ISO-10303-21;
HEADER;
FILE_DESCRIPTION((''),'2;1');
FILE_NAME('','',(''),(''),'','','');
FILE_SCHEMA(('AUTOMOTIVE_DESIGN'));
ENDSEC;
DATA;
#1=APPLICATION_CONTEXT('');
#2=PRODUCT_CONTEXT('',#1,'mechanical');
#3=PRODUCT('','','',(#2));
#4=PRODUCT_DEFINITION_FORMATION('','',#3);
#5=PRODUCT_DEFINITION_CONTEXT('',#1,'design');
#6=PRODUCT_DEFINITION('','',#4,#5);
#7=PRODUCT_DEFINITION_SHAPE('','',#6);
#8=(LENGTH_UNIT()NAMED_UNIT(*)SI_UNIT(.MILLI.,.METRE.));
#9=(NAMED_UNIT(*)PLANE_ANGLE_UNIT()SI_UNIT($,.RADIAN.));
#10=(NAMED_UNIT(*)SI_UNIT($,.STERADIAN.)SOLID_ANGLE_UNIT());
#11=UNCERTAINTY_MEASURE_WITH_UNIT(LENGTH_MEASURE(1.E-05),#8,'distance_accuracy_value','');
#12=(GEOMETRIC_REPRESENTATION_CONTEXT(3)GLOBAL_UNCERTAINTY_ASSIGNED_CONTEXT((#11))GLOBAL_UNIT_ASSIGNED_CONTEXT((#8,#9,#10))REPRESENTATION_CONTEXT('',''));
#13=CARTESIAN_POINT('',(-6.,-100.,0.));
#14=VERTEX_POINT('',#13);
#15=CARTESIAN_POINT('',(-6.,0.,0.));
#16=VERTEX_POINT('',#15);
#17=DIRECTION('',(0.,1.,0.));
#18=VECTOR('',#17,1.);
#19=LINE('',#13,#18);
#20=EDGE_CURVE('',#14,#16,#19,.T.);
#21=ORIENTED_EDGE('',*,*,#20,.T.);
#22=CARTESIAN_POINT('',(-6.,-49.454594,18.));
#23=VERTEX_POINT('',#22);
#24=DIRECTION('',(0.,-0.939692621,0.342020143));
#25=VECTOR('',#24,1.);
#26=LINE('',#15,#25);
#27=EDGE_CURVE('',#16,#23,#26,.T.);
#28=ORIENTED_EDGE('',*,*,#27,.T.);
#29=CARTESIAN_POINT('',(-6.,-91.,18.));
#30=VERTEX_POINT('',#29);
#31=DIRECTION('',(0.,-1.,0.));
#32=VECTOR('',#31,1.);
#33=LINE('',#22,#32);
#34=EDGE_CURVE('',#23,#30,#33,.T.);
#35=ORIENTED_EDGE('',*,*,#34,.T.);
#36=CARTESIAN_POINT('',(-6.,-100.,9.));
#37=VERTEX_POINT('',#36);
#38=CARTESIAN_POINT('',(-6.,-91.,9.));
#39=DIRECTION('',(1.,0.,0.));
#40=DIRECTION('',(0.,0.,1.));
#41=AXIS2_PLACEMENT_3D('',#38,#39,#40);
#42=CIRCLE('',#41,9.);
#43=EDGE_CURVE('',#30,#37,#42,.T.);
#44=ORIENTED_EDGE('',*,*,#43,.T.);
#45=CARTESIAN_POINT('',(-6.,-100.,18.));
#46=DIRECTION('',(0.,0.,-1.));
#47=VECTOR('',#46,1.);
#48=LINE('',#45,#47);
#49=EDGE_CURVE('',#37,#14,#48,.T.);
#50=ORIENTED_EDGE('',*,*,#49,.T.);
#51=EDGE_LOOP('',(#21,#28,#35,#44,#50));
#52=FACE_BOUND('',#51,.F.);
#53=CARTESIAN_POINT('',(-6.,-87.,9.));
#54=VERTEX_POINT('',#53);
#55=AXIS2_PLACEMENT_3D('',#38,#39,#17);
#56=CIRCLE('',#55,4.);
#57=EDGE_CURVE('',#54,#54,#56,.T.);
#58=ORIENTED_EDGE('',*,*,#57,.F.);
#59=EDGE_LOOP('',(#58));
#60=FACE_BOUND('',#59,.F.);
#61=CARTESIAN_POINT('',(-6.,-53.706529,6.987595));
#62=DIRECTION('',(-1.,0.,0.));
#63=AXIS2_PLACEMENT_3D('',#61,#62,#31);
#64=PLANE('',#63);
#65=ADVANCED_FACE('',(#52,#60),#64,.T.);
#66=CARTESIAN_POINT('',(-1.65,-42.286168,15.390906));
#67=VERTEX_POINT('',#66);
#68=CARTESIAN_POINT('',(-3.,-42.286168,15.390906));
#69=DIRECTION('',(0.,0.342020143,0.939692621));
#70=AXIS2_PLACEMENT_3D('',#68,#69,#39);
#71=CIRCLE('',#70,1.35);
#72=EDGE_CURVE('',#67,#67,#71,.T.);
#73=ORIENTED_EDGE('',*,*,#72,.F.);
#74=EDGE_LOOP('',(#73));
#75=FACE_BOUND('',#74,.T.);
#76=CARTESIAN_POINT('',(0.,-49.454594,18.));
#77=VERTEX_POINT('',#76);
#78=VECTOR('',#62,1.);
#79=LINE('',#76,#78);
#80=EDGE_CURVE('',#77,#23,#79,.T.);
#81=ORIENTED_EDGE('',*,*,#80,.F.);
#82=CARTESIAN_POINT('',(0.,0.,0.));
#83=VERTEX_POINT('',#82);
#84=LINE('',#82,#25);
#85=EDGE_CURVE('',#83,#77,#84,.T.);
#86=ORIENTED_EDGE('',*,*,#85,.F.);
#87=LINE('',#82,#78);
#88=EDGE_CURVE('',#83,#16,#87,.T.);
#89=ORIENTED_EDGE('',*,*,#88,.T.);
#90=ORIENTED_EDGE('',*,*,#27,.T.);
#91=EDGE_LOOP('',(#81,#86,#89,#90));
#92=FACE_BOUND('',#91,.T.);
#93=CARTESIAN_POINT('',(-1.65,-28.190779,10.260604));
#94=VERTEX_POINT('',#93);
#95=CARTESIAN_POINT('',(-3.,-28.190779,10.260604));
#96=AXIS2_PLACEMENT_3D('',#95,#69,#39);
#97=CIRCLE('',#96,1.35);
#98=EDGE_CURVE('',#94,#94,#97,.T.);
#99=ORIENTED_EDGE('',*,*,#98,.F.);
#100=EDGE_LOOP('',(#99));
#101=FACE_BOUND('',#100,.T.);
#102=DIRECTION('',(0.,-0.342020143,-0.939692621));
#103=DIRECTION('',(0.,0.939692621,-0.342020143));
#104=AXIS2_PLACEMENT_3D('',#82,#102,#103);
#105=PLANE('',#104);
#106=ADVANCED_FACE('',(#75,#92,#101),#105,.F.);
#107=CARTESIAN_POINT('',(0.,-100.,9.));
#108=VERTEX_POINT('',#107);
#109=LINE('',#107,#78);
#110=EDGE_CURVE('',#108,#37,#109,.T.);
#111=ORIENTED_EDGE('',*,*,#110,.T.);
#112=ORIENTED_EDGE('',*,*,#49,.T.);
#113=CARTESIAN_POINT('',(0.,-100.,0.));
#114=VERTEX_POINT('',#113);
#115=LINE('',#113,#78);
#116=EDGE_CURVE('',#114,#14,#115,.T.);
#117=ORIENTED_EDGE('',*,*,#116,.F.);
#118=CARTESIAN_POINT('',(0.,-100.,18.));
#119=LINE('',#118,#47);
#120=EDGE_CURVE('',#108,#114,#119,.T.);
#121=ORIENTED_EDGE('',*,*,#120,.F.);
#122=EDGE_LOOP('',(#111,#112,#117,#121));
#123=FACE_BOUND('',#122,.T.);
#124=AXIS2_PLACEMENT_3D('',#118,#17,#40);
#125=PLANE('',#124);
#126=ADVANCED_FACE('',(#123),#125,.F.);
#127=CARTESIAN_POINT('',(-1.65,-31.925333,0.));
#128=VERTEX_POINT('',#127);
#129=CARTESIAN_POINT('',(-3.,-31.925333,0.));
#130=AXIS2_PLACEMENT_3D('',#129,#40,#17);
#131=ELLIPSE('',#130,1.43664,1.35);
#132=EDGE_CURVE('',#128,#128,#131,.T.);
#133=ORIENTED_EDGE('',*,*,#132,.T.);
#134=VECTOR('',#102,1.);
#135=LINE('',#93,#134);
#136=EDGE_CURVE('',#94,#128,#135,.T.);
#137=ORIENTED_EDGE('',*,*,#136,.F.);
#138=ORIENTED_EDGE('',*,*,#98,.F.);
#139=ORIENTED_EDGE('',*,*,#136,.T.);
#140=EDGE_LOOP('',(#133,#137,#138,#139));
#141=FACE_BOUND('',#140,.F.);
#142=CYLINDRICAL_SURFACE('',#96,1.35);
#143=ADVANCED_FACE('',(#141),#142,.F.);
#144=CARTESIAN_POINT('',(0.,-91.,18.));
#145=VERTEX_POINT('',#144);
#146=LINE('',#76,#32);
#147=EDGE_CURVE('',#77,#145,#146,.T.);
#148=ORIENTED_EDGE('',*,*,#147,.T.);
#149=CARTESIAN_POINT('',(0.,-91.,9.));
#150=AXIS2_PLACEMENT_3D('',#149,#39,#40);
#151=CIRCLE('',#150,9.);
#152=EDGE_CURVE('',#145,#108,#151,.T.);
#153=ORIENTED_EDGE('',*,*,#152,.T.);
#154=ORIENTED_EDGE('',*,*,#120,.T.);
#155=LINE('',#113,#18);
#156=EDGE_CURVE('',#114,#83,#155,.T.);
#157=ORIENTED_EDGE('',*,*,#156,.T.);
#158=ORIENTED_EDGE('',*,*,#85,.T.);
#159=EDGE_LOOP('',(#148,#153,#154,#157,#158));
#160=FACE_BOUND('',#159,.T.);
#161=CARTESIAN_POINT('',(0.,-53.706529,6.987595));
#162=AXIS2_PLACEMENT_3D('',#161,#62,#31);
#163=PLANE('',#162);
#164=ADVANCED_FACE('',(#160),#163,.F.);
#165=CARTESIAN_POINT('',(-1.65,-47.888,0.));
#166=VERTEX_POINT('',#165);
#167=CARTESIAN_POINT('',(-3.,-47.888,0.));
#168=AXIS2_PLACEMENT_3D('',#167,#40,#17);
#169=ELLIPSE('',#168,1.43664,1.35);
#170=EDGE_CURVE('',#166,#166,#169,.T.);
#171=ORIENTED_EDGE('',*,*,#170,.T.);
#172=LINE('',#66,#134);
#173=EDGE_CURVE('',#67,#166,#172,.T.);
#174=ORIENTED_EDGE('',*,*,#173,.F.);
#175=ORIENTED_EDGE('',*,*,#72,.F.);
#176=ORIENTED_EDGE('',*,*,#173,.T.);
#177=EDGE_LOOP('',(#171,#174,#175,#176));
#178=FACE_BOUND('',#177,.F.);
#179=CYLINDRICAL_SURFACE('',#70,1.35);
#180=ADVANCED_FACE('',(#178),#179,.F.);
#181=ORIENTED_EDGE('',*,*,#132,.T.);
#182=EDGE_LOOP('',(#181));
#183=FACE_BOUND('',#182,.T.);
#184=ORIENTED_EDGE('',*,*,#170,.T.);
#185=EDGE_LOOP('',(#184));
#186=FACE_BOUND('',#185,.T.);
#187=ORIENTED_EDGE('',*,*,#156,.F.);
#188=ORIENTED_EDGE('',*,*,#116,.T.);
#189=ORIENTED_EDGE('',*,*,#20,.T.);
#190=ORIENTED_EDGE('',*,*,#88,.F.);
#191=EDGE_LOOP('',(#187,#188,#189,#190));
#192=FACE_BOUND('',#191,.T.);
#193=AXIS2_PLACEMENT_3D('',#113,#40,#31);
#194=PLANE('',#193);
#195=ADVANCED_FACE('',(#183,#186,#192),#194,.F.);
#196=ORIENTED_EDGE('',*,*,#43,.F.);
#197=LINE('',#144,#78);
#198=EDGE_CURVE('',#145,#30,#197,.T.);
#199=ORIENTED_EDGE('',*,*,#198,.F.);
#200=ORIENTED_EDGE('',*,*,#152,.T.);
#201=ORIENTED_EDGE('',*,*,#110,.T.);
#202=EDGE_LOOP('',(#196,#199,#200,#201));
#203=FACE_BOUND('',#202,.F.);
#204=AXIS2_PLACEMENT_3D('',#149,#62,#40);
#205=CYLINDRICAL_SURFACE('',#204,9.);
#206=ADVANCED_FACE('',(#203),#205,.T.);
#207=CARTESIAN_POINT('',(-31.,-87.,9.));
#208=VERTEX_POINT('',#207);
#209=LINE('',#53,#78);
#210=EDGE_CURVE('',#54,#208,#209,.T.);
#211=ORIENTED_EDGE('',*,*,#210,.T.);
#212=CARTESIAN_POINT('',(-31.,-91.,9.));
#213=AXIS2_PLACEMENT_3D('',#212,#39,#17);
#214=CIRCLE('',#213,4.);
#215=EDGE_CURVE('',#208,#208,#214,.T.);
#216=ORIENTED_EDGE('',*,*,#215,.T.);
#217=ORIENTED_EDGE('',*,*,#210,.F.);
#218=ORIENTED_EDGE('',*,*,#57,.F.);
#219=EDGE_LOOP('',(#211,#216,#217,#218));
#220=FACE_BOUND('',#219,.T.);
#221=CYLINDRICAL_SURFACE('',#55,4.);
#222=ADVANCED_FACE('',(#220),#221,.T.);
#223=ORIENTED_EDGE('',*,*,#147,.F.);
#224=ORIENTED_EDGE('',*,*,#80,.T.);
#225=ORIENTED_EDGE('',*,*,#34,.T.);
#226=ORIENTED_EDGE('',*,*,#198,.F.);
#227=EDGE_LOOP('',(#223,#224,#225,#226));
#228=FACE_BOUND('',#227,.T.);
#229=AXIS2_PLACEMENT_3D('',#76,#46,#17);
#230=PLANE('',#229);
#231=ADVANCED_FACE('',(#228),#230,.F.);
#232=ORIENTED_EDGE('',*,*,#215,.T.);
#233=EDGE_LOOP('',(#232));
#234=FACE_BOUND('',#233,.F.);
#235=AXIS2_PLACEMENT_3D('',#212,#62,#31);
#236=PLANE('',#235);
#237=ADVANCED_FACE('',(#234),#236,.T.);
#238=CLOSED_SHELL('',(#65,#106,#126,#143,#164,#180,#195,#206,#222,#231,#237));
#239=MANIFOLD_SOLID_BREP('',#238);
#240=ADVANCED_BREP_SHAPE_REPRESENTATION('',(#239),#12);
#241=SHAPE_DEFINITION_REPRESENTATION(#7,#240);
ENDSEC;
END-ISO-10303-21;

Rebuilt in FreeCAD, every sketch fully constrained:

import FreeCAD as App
import Part
import Sketcher
Q = App.Units.Quantity


def edges_at(feature, points):
    """Names of the edges that pass closest to the given points."""
    edges = feature.Shape.Edges
    near = lambda p: min(range(len(edges)), key=lambda i: edges[i].distToShape(Part.Vertex(*p))[0])
    return sorted({f"Edge{near(p) + 1}" for p in points})


def add_polygon(sketch, points):
    """Adds a closed chain of lines whose ends are joined by coincident constraints."""
    first, n = sketch.GeometryCount, len(points)
    for a, b in zip(points, points[1:] + points[:1]):
        sketch.addGeometry(Part.LineSegment(App.Vector(*a, 0), App.Vector(*b, 0)), False)
    for i in range(n):
        sketch.addConstraint(Sketcher.Constraint("Coincident", first + i, 2, first + (i + 1) % n, 1))

doc = App.newDocument("Part")
params = doc.addObject("Spreadsheet::Sheet", "Params")
for row, (alias, value) in enumerate([
    ("sketch1_width", "100 mm"),
    ("sketch1_height", "18 mm"),
    ("pad1_length", "6 mm"),
    ("fillet_radius", "9 mm"),
    ("sketch2_diameter", "8 mm"),
    ("pad2_length", "25 mm"),
    ("sketch3_diameter", "2.7 mm"),
    ("pocket1_length", "25 mm"),
], start=1):
    params.set(f"A{row}", alias)
    params.set(f"B{row}", "=" + value)
    params.setAlias(f"B{row}", alias)

body = doc.addObject("PartDesign::Body", "Body")

sketch1 = doc.addObject("Sketcher::SketchObject", "Sketch")
body.addObject(sketch1)
sketch1.AttachmentSupport = (doc.YZ_Plane, [""])
sketch1.MapMode = "FlatFace"
add_polygon(sketch1, [(-100, 0), (0, 0), (-49, 18), (-100, 18)])
sketch1.addConstraint([
    Sketcher.Constraint("Horizontal", 0),
    Sketcher.Constraint("Horizontal", 2),
    Sketcher.Constraint("Vertical", 3),
    Sketcher.Constraint("Coincident", 0, 2, -1, 1),
    Sketcher.Constraint("DistanceX", 0, 1, 0, 2, Q("100 mm")),
    Sketcher.Constraint("DistanceY", 3, 2, 3, 1, Q("18 mm")),
    Sketcher.Constraint("Angle", 1, Q("160 deg")),
])
sketch1.setExpression("Constraints[8]", "Params.sketch1_width")
sketch1.setExpression("Constraints[9]", "Params.sketch1_height")
pad1 = doc.addObject("PartDesign::Pad", "Pad")
body.addObject(pad1)
pad1.Profile = sketch1
pad1.setExpression("Length", "Params.pad1_length")
doc.recompute()

fillet = doc.addObject("PartDesign::Fillet", "Fillet")
body.addObject(fillet)
fillet.Base = (pad1, edges_at(pad1, [(3, -100, 18)]))
fillet.setExpression("Radius", "Params.fillet_radius")

sketch2 = doc.addObject("Sketcher::SketchObject", "Sketch001")
body.addObject(sketch2)
sketch2.AttachmentSupport = (doc.YZ_Plane, [""])
sketch2.MapMode = "FlatFace"
sketch2.AttachmentOffset = App.Placement(App.Vector(0, 0, 6), App.Rotation())
sketch2.addGeometry(Part.Circle(App.Vector(-91, 9, 0), App.Vector(0, 0, 1), 4), False)
sketch2.addConstraint([
    Sketcher.Constraint("Diameter", 0, Q("8 mm")),
    Sketcher.Constraint("DistanceX", 0, 3, -1, 1, Q("91 mm")),
    Sketcher.Constraint("DistanceY", -1, 1, 0, 3, Q("9 mm")),
])
sketch2.setExpression("Constraints[0]", "Params.sketch2_diameter")
pad2 = doc.addObject("PartDesign::Pad", "Pad001")
body.addObject(pad2)
pad2.Profile = sketch2
pad2.setExpression("Length", "Params.pad2_length")
body2 = doc.addObject("PartDesign::Body", "Body001")
doc.recompute()

mirroring = doc.addObject("Part::Mirroring", "Mirroring")
mirroring.Source = body
mirroring.Base = App.Vector(0, 0, 0)
mirroring.Normal = App.Vector(1, 0, 0)
body2.BaseFeature = mirroring
doc.recompute()

sketch3 = doc.addObject("Sketcher::SketchObject", "Sketch002")
body2.addObject(sketch3)
sketch3.Placement = App.Placement(App.Vector(0, 0, 0), App.Rotation(App.Vector(1, 0, 0), App.Vector(0, 0.939692621, -0.342020143), App.Vector(0, 0.342020143, 0.939692621), "ZXY"))
sketch3.addGeometry([
    Part.Circle(App.Vector(-3, -45, 0), App.Vector(0, 0, 1), 1.4),
    Part.Circle(App.Vector(-3, -30, 0), App.Vector(0, 0, 1), 1.4),
], False)
sketch3.addConstraint([
    Sketcher.Constraint("Equal", 0, 1),
    Sketcher.Constraint("Vertical", 0, 3, 1, 3),
    Sketcher.Constraint("Diameter", 0, Q("2.7 mm")),
    Sketcher.Constraint("DistanceX", 0, 3, -1, 1, Q("3 mm")),
    Sketcher.Constraint("DistanceY", 0, 3, -1, 1, Q("45 mm")),
    Sketcher.Constraint("DistanceY", 1, 3, -1, 1, Q("30 mm")),
])
sketch3.setExpression("Constraints[2]", "Params.sketch3_diameter")
pocket1 = doc.addObject("PartDesign::Pocket", "Pocket")
body2.addObject(pocket1)
pocket1.Profile = sketch3
pocket1.setExpression("Length", "Params.pocket1_length")
body.Visibility = False
mirroring.Visibility = False

doc.recompute()
